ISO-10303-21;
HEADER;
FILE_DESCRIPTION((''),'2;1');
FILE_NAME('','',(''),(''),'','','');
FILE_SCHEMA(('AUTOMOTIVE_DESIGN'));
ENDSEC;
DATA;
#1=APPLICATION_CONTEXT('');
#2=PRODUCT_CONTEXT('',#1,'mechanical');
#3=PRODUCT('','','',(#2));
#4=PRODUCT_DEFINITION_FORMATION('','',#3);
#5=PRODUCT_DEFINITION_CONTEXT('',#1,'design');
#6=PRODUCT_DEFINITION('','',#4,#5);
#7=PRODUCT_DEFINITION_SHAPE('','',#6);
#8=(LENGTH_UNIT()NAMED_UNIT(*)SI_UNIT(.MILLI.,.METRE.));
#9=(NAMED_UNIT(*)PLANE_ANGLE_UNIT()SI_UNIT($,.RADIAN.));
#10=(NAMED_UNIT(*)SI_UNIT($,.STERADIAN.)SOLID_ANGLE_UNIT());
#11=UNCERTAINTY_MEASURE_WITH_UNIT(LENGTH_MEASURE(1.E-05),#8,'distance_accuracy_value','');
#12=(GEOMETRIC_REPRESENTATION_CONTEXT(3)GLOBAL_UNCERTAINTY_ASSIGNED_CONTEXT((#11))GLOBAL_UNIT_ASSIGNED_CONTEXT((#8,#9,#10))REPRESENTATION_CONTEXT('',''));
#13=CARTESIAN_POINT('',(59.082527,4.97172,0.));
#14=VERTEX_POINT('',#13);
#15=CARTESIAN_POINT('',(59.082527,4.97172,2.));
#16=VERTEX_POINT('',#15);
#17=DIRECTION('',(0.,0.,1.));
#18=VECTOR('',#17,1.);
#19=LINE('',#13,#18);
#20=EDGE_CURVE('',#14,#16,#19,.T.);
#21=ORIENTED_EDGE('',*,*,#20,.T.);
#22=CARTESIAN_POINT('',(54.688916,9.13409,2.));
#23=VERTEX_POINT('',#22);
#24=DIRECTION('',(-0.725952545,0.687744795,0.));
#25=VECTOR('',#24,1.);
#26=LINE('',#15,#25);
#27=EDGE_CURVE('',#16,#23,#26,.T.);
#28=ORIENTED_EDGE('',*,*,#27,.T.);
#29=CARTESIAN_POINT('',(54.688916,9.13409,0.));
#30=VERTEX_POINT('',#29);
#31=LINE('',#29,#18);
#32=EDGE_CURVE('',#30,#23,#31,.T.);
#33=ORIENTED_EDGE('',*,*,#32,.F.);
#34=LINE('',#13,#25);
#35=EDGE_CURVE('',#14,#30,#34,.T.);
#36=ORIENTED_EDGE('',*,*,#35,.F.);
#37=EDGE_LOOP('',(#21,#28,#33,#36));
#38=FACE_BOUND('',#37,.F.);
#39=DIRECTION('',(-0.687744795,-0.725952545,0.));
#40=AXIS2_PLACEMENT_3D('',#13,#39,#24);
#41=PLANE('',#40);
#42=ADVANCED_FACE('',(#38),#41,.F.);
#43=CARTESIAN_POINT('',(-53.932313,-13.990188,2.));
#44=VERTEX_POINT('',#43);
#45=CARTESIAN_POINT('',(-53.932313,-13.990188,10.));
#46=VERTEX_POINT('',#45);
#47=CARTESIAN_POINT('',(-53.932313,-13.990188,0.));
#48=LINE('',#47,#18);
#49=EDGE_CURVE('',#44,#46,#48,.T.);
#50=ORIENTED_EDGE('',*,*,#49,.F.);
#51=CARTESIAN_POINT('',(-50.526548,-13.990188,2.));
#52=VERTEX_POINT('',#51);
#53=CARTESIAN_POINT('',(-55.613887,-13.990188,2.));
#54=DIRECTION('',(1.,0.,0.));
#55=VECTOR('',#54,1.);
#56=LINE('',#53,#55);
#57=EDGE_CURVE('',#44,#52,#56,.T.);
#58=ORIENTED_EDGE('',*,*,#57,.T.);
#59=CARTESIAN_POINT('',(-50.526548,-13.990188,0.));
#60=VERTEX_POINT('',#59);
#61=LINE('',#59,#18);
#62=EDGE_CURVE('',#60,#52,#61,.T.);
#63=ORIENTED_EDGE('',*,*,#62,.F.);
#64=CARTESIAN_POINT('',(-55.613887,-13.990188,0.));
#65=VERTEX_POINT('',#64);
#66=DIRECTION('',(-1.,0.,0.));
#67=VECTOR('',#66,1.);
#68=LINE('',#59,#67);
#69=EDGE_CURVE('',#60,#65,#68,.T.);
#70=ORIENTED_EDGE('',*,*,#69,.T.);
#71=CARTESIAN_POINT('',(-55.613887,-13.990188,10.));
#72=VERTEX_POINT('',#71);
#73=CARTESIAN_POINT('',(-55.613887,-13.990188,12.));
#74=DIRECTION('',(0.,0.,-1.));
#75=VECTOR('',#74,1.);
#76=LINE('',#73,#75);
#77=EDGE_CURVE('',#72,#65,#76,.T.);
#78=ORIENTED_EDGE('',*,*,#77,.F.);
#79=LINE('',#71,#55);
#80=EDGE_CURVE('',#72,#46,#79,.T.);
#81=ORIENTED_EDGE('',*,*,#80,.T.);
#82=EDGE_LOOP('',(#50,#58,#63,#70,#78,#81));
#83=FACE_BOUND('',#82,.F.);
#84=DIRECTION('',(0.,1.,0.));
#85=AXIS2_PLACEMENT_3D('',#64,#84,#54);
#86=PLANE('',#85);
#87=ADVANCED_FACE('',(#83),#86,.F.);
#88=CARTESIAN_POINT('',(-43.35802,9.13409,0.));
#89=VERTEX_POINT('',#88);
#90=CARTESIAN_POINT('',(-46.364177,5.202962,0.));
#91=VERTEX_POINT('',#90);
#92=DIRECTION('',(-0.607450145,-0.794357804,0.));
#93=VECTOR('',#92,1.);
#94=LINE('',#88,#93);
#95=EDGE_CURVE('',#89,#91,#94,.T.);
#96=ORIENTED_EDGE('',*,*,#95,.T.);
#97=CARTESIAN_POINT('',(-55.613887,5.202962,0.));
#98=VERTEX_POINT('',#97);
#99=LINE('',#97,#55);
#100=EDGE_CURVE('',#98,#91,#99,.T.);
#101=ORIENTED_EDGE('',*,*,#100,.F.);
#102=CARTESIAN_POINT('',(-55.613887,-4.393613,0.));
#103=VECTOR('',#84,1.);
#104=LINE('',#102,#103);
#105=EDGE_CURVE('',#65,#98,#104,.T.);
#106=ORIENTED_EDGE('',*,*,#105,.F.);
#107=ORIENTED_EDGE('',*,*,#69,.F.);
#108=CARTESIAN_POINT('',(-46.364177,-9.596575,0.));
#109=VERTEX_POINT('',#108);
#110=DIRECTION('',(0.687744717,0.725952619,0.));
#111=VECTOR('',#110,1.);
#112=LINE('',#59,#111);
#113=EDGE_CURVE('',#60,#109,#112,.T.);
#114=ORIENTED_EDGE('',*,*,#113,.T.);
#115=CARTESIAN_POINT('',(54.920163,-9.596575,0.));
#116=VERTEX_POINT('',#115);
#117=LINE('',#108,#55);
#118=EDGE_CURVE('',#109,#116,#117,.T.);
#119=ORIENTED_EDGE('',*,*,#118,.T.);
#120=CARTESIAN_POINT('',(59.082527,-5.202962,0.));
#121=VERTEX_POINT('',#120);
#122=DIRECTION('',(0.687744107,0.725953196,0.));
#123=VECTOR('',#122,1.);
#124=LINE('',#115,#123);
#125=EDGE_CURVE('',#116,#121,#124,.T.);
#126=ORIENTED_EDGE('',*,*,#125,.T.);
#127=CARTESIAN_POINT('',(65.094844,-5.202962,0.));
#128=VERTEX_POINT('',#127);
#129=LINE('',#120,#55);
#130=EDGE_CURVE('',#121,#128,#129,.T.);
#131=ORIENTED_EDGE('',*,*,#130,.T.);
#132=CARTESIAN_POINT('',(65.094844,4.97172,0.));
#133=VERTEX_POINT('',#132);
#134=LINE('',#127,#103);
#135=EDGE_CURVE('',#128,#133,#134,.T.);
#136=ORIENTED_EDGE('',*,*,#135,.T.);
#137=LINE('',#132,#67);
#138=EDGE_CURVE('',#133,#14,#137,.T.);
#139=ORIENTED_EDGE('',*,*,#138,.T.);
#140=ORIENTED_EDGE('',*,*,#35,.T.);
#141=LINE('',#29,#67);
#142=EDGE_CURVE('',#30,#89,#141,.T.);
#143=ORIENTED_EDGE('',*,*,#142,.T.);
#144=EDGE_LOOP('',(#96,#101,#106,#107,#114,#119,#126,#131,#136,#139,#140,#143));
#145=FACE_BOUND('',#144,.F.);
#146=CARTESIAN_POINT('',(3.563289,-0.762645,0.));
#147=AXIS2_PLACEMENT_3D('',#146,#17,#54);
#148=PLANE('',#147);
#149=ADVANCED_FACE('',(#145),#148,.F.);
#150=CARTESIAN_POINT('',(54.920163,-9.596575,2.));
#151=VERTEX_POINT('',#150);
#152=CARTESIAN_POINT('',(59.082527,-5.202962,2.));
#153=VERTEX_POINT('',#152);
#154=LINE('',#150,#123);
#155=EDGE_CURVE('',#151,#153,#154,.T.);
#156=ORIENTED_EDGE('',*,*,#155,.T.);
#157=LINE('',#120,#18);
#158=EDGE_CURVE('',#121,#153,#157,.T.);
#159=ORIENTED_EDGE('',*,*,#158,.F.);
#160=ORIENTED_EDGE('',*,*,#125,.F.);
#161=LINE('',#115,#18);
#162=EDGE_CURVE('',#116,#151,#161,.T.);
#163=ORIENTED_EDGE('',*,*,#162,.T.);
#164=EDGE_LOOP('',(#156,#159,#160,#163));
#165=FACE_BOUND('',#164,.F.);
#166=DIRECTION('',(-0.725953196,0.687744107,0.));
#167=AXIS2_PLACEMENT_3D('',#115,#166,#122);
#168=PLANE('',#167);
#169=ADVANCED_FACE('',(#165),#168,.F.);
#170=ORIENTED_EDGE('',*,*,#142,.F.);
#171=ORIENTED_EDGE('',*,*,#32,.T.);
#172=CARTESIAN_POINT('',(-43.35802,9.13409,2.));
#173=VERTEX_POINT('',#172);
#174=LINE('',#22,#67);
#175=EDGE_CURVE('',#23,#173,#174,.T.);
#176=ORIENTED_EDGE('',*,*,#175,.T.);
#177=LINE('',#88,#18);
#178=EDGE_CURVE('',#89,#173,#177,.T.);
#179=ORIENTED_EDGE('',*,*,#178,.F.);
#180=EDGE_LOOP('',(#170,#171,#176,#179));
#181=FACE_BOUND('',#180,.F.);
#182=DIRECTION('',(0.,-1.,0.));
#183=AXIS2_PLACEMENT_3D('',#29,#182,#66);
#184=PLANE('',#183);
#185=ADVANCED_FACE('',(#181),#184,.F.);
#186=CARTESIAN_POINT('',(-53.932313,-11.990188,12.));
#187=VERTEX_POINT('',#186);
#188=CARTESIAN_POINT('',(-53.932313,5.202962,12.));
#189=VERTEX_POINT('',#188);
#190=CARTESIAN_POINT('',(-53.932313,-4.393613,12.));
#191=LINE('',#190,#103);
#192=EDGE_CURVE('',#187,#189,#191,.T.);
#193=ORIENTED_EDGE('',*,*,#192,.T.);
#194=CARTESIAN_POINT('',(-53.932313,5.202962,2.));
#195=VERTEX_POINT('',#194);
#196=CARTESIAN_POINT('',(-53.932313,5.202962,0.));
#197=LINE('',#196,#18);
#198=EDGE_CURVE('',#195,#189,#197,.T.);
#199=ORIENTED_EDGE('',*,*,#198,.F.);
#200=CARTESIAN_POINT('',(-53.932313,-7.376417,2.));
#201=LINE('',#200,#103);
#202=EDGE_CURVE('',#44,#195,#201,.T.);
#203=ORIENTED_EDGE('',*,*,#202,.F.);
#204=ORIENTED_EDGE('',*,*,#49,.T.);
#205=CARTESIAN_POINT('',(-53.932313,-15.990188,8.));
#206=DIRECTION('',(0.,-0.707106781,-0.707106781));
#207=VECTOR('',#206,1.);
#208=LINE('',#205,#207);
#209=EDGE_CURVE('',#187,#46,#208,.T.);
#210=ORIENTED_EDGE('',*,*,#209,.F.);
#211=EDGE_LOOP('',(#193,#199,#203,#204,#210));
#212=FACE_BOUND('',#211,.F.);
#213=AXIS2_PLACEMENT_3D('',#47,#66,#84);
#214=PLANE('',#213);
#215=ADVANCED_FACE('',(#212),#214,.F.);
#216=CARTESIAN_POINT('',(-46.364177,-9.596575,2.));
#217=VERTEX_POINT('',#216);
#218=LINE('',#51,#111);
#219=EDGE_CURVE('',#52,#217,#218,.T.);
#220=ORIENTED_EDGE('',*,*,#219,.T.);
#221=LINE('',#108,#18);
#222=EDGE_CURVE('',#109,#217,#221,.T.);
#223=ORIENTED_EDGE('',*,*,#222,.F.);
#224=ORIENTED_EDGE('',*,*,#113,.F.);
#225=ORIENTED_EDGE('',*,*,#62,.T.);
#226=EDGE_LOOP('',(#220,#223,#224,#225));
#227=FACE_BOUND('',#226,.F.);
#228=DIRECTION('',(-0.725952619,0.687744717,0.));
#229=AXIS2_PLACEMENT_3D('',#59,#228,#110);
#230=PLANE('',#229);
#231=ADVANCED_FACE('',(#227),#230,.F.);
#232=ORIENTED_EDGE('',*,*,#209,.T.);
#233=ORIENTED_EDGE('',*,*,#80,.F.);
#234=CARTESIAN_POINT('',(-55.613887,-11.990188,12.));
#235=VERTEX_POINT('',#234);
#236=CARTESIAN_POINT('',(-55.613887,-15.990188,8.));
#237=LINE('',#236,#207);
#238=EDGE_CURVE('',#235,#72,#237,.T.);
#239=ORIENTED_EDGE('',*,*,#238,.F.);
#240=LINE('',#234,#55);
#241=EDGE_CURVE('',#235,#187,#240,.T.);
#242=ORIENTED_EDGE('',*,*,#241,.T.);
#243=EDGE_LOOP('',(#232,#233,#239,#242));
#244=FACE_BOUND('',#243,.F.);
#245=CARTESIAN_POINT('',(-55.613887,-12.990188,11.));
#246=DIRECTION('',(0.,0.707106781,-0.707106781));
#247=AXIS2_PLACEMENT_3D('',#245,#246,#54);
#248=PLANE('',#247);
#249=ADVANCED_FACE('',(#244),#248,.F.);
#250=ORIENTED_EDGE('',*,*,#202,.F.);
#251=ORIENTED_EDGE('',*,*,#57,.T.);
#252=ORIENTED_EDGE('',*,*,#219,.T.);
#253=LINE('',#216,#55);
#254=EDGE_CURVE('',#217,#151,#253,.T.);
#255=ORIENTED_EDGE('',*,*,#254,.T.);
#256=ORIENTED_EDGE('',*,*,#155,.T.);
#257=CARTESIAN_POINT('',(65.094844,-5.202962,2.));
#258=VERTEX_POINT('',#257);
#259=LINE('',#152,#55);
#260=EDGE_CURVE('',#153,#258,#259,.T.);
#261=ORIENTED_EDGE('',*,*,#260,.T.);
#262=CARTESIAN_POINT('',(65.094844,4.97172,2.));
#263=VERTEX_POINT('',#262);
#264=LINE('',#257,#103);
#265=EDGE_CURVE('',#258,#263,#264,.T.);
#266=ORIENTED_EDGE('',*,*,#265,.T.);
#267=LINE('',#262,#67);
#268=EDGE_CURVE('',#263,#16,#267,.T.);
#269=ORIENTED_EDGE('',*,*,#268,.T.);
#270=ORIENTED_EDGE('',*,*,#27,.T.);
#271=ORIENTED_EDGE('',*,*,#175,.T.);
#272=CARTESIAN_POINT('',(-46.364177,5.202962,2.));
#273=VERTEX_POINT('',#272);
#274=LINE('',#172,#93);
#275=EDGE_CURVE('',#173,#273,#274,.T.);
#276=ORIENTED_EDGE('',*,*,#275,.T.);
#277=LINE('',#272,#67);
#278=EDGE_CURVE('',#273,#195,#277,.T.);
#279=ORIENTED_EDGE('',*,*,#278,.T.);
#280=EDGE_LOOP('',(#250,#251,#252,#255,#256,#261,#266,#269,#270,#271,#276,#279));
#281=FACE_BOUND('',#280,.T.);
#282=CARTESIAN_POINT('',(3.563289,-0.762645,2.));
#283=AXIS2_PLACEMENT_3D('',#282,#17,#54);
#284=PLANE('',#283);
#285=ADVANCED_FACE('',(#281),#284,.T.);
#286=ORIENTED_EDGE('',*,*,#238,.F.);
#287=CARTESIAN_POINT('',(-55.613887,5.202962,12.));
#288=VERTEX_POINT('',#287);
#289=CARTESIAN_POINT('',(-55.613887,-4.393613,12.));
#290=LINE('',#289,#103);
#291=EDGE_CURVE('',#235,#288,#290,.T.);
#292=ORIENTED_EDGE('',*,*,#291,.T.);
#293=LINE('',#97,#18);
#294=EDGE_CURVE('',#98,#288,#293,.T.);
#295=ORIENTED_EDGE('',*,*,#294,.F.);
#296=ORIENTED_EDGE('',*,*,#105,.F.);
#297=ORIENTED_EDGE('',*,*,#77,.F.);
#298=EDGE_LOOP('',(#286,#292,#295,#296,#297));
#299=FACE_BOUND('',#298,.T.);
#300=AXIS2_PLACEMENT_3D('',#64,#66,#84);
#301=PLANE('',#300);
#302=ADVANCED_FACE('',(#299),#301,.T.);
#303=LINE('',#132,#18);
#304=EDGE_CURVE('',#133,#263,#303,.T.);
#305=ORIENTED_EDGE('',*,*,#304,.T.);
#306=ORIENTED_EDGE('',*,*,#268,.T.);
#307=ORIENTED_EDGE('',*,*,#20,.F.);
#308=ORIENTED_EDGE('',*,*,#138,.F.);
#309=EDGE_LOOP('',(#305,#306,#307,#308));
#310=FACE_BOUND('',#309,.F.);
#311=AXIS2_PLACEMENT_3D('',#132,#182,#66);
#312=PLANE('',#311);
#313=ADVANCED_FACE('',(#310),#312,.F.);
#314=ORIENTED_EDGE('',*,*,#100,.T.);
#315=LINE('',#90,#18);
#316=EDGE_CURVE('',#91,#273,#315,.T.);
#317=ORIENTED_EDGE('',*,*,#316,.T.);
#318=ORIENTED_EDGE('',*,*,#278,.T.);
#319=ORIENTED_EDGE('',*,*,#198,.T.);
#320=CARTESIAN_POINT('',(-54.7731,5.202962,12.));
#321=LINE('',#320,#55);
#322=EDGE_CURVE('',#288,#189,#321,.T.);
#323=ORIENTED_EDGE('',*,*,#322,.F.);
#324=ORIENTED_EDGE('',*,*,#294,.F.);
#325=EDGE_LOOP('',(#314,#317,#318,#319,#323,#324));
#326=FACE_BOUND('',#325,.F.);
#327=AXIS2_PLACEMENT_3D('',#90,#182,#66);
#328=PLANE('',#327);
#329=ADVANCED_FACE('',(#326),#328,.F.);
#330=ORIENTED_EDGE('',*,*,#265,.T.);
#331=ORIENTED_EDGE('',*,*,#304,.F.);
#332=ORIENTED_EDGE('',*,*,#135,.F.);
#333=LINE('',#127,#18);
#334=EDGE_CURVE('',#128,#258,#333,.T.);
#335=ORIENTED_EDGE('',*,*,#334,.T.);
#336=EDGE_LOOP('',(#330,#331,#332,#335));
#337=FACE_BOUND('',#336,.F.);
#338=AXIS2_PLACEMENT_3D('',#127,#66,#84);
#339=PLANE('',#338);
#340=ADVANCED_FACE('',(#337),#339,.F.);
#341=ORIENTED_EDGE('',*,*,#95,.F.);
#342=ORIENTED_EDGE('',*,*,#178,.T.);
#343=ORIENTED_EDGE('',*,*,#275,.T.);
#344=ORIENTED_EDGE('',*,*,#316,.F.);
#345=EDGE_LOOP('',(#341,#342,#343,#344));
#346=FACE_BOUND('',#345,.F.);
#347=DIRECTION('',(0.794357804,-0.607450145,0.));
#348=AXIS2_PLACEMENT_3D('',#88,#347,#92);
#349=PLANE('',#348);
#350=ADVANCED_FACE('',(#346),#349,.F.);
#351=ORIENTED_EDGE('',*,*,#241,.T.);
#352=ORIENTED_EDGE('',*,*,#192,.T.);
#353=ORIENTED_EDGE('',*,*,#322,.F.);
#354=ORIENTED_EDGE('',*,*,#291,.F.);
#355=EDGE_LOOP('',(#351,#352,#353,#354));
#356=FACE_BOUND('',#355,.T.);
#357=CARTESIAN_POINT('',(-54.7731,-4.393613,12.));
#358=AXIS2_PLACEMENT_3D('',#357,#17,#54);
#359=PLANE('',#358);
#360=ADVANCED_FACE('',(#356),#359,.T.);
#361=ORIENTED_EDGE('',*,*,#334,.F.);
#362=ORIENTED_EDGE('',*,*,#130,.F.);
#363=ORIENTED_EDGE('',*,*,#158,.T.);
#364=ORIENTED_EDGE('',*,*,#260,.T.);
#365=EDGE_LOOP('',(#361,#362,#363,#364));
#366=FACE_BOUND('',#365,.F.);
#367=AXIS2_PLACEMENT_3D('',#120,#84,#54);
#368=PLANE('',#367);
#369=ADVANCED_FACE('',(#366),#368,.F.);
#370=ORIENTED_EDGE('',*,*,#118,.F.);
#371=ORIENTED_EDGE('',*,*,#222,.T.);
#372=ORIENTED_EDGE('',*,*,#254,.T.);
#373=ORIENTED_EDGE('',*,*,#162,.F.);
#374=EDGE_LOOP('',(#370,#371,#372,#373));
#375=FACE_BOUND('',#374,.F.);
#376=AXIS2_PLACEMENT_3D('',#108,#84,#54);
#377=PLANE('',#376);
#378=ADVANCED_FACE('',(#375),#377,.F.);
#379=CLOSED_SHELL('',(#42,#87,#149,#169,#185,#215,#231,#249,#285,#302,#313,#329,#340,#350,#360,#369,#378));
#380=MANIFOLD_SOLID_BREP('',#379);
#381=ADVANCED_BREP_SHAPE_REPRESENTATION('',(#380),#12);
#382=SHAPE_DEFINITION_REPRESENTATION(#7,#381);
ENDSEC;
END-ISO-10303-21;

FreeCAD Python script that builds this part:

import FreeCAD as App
import Part
import Sketcher
from FreeCAD import Vector


def edges_at(feature, points):
    """Names of the edges that pass closest to the given points."""
    edges = feature.Shape.Edges
    near = lambda p: min(range(len(edges)), key=lambda i: edges[i].distToShape(Part.Vertex(*p))[0])
    return sorted({f"Edge{near(p) + 1}" for p in points})

doc = App.newDocument("Part")
body = doc.addObject("PartDesign::Body", "Body")

sketch1 = body.newObject("Sketcher::SketchObject", "Sketch")
sketch1.AttachmentSupport = (doc.getObject("XY_Plane"), [""])
sketch1.MapMode = "FlatFace"
sketch1.addGeometry([
    Part.LineSegment(Vector(-55.6, 5.2, 0), Vector(-55.6, -14, 0)),
    Part.LineSegment(Vector(-55.6, -14, 0), Vector(-53.9, -14, 0)),
    Part.LineSegment(Vector(-53.9, -14, 0), Vector(-53.9, 5.2, 0)),
    Part.LineSegment(Vector(-53.9, 5.2, 0), Vector(-55.6, 5.2, 0)),
], False)
sketch1.addConstraint([
    Sketcher.Constraint("Coincident", 0, 2, 1, 1),
    Sketcher.Constraint("Coincident", 1, 2, 2, 1),
    Sketcher.Constraint("Coincident", 2, 2, 3, 1),
    Sketcher.Constraint("Coincident", 3, 2, 0, 1),
    Sketcher.Constraint("Vertical", 0),
    Sketcher.Constraint("Horizontal", 1),
    Sketcher.Constraint("Vertical", 2),
    Sketcher.Constraint("Horizontal", 3),
    Sketcher.Constraint("DistanceY", 0, 2, 0, 1, 19.19315),
    Sketcher.Constraint("DistanceX", 1, 1, 1, 2, 1.681574),
    Sketcher.Constraint("DistanceX", 0, 2, -1, 1, 55.613887),
    Sketcher.Constraint("DistanceY", 0, 2, -1, 1, 13.990188),
])
pad1 = body.newObject("PartDesign::Pad", "Pad")
pad1.Profile = sketch1
pad1.Length = 12

sketch2 = body.newObject("Sketcher::SketchObject", "Sketch001")
sketch2.AttachmentSupport = (doc.getObject("XY_Plane"), [""])
sketch2.MapMode = "FlatFace"
sketch2.addGeometry([
    Part.LineSegment(Vector(54.7, 9.1, 0), Vector(-43.4, 9.1, 0)),
    Part.LineSegment(Vector(-43.4, 9.1, 0), Vector(-46.4, 5.2, 0)),
    Part.LineSegment(Vector(-46.4, 5.2, 0), Vector(-55.6, 5.2, 0)),
    Part.LineSegment(Vector(-55.6, 5.2, 0), Vector(-55.6, -14, 0)),
    Part.LineSegment(Vector(-55.6, -14, 0), Vector(-50.5, -14, 0)),
    Part.LineSegment(Vector(-50.5, -14, 0), Vector(-46.4, -9.6, 0)),
    Part.LineSegment(Vector(-46.4, -9.6, 0), Vector(54.9, -9.6, 0)),
    Part.LineSegment(Vector(54.9, -9.6, 0), Vector(59.1, -5.2, 0)),
    Part.LineSegment(Vector(59.1, -5.2, 0), Vector(65.1, -5.2, 0)),
    Part.LineSegment(Vector(65.1, -5.2, 0), Vector(65.1, 5, 0)),
    Part.LineSegment(Vector(65.1, 5, 0), Vector(59.1, 5, 0)),
    Part.LineSegment(Vector(59.1, 5, 0), Vector(54.7, 9.1, 0)),
], False)
sketch2.addConstraint([
    Sketcher.Constraint("Coincident", 0, 2, 1, 1),
    Sketcher.Constraint("Coincident", 1, 2, 2, 1),
    Sketcher.Constraint("Coincident", 2, 2, 3, 1),
    Sketcher.Constraint("Coincident", 3, 2, 4, 1),
    Sketcher.Constraint("Coincident", 4, 2, 5, 1),
    Sketcher.Constraint("Coincident", 5, 2, 6, 1),
    Sketcher.Constraint("Coincident", 6, 2, 7, 1),
    Sketcher.Constraint("Coincident", 7, 2, 8, 1),
    Sketcher.Constraint("Coincident", 8, 2, 9, 1),
    Sketcher.Constraint("Coincident", 9, 2, 10, 1),
    Sketcher.Constraint("Coincident", 10, 2, 11, 1),
    Sketcher.Constraint("Coincident", 11, 2, 0, 1),
    Sketcher.Constraint("Horizontal", 0),
    Sketcher.Constraint("Horizontal", 2),
    Sketcher.Constraint("Vertical", 3),
    Sketcher.Constraint("Horizontal", 4),
    Sketcher.Constraint("Horizontal", 6),
    Sketcher.Constraint("Horizontal", 8),
    Sketcher.Constraint("Vertical", 9),
    Sketcher.Constraint("Horizontal", 10),
    Sketcher.Constraint("Parallel", 5, 7),
    Sketcher.Constraint("Perpendicular", 7, 11),
    Sketcher.Constraint("Vertical", 1, 2, 5, 2),
    Sketcher.Constraint("Vertical", 7, 2, 10, 2),
    Sketcher.Constraint("Distance", 7, 6.052199),
    Sketcher.Constraint("Distance", 11, 6.052201),
    Sketcher.Constraint("DistanceX", 2, 2, 2, 1, 9.24971),
    Sketcher.Constraint("DistanceX", 4, 1, 4, 2, 5.087339),
    Sketcher.Constraint("DistanceX", 6, 1, 6, 2, 101.28434),
    Sketcher.Constraint("DistanceY", 3, 2, 3, 1, 19.19315),
    Sketcher.Constraint("DistanceX", 0, 2, 0, 1, 98.046936),
    Sketcher.Constraint("DistanceX", 8, 1, 8, 2, 6.012317),
    Sketcher.Constraint("DistanceY", 9, 1, 9, 2, 10.174682),
    Sketcher.Constraint("DistanceX", 0, 2, -1, 1, 43.35802),
    Sketcher.Constraint("DistanceY", -1, 1, 0, 2, 9.13409),
    Sketcher.Constraint("DistanceY", -1, 1, 9, 2, 4.97172),
])
pad2 = body.newObject("PartDesign::Pad", "Pad001")
pad2.Profile = sketch2
pad2.Length = 2
doc.recompute()

chamfer = body.newObject("PartDesign::Chamfer", "Chamfer")
chamfer.Base = (pad2, edges_at(pad2, [(-54.773, -13.99, 12)]))
chamfer.Size = 2

doc.recompute()
